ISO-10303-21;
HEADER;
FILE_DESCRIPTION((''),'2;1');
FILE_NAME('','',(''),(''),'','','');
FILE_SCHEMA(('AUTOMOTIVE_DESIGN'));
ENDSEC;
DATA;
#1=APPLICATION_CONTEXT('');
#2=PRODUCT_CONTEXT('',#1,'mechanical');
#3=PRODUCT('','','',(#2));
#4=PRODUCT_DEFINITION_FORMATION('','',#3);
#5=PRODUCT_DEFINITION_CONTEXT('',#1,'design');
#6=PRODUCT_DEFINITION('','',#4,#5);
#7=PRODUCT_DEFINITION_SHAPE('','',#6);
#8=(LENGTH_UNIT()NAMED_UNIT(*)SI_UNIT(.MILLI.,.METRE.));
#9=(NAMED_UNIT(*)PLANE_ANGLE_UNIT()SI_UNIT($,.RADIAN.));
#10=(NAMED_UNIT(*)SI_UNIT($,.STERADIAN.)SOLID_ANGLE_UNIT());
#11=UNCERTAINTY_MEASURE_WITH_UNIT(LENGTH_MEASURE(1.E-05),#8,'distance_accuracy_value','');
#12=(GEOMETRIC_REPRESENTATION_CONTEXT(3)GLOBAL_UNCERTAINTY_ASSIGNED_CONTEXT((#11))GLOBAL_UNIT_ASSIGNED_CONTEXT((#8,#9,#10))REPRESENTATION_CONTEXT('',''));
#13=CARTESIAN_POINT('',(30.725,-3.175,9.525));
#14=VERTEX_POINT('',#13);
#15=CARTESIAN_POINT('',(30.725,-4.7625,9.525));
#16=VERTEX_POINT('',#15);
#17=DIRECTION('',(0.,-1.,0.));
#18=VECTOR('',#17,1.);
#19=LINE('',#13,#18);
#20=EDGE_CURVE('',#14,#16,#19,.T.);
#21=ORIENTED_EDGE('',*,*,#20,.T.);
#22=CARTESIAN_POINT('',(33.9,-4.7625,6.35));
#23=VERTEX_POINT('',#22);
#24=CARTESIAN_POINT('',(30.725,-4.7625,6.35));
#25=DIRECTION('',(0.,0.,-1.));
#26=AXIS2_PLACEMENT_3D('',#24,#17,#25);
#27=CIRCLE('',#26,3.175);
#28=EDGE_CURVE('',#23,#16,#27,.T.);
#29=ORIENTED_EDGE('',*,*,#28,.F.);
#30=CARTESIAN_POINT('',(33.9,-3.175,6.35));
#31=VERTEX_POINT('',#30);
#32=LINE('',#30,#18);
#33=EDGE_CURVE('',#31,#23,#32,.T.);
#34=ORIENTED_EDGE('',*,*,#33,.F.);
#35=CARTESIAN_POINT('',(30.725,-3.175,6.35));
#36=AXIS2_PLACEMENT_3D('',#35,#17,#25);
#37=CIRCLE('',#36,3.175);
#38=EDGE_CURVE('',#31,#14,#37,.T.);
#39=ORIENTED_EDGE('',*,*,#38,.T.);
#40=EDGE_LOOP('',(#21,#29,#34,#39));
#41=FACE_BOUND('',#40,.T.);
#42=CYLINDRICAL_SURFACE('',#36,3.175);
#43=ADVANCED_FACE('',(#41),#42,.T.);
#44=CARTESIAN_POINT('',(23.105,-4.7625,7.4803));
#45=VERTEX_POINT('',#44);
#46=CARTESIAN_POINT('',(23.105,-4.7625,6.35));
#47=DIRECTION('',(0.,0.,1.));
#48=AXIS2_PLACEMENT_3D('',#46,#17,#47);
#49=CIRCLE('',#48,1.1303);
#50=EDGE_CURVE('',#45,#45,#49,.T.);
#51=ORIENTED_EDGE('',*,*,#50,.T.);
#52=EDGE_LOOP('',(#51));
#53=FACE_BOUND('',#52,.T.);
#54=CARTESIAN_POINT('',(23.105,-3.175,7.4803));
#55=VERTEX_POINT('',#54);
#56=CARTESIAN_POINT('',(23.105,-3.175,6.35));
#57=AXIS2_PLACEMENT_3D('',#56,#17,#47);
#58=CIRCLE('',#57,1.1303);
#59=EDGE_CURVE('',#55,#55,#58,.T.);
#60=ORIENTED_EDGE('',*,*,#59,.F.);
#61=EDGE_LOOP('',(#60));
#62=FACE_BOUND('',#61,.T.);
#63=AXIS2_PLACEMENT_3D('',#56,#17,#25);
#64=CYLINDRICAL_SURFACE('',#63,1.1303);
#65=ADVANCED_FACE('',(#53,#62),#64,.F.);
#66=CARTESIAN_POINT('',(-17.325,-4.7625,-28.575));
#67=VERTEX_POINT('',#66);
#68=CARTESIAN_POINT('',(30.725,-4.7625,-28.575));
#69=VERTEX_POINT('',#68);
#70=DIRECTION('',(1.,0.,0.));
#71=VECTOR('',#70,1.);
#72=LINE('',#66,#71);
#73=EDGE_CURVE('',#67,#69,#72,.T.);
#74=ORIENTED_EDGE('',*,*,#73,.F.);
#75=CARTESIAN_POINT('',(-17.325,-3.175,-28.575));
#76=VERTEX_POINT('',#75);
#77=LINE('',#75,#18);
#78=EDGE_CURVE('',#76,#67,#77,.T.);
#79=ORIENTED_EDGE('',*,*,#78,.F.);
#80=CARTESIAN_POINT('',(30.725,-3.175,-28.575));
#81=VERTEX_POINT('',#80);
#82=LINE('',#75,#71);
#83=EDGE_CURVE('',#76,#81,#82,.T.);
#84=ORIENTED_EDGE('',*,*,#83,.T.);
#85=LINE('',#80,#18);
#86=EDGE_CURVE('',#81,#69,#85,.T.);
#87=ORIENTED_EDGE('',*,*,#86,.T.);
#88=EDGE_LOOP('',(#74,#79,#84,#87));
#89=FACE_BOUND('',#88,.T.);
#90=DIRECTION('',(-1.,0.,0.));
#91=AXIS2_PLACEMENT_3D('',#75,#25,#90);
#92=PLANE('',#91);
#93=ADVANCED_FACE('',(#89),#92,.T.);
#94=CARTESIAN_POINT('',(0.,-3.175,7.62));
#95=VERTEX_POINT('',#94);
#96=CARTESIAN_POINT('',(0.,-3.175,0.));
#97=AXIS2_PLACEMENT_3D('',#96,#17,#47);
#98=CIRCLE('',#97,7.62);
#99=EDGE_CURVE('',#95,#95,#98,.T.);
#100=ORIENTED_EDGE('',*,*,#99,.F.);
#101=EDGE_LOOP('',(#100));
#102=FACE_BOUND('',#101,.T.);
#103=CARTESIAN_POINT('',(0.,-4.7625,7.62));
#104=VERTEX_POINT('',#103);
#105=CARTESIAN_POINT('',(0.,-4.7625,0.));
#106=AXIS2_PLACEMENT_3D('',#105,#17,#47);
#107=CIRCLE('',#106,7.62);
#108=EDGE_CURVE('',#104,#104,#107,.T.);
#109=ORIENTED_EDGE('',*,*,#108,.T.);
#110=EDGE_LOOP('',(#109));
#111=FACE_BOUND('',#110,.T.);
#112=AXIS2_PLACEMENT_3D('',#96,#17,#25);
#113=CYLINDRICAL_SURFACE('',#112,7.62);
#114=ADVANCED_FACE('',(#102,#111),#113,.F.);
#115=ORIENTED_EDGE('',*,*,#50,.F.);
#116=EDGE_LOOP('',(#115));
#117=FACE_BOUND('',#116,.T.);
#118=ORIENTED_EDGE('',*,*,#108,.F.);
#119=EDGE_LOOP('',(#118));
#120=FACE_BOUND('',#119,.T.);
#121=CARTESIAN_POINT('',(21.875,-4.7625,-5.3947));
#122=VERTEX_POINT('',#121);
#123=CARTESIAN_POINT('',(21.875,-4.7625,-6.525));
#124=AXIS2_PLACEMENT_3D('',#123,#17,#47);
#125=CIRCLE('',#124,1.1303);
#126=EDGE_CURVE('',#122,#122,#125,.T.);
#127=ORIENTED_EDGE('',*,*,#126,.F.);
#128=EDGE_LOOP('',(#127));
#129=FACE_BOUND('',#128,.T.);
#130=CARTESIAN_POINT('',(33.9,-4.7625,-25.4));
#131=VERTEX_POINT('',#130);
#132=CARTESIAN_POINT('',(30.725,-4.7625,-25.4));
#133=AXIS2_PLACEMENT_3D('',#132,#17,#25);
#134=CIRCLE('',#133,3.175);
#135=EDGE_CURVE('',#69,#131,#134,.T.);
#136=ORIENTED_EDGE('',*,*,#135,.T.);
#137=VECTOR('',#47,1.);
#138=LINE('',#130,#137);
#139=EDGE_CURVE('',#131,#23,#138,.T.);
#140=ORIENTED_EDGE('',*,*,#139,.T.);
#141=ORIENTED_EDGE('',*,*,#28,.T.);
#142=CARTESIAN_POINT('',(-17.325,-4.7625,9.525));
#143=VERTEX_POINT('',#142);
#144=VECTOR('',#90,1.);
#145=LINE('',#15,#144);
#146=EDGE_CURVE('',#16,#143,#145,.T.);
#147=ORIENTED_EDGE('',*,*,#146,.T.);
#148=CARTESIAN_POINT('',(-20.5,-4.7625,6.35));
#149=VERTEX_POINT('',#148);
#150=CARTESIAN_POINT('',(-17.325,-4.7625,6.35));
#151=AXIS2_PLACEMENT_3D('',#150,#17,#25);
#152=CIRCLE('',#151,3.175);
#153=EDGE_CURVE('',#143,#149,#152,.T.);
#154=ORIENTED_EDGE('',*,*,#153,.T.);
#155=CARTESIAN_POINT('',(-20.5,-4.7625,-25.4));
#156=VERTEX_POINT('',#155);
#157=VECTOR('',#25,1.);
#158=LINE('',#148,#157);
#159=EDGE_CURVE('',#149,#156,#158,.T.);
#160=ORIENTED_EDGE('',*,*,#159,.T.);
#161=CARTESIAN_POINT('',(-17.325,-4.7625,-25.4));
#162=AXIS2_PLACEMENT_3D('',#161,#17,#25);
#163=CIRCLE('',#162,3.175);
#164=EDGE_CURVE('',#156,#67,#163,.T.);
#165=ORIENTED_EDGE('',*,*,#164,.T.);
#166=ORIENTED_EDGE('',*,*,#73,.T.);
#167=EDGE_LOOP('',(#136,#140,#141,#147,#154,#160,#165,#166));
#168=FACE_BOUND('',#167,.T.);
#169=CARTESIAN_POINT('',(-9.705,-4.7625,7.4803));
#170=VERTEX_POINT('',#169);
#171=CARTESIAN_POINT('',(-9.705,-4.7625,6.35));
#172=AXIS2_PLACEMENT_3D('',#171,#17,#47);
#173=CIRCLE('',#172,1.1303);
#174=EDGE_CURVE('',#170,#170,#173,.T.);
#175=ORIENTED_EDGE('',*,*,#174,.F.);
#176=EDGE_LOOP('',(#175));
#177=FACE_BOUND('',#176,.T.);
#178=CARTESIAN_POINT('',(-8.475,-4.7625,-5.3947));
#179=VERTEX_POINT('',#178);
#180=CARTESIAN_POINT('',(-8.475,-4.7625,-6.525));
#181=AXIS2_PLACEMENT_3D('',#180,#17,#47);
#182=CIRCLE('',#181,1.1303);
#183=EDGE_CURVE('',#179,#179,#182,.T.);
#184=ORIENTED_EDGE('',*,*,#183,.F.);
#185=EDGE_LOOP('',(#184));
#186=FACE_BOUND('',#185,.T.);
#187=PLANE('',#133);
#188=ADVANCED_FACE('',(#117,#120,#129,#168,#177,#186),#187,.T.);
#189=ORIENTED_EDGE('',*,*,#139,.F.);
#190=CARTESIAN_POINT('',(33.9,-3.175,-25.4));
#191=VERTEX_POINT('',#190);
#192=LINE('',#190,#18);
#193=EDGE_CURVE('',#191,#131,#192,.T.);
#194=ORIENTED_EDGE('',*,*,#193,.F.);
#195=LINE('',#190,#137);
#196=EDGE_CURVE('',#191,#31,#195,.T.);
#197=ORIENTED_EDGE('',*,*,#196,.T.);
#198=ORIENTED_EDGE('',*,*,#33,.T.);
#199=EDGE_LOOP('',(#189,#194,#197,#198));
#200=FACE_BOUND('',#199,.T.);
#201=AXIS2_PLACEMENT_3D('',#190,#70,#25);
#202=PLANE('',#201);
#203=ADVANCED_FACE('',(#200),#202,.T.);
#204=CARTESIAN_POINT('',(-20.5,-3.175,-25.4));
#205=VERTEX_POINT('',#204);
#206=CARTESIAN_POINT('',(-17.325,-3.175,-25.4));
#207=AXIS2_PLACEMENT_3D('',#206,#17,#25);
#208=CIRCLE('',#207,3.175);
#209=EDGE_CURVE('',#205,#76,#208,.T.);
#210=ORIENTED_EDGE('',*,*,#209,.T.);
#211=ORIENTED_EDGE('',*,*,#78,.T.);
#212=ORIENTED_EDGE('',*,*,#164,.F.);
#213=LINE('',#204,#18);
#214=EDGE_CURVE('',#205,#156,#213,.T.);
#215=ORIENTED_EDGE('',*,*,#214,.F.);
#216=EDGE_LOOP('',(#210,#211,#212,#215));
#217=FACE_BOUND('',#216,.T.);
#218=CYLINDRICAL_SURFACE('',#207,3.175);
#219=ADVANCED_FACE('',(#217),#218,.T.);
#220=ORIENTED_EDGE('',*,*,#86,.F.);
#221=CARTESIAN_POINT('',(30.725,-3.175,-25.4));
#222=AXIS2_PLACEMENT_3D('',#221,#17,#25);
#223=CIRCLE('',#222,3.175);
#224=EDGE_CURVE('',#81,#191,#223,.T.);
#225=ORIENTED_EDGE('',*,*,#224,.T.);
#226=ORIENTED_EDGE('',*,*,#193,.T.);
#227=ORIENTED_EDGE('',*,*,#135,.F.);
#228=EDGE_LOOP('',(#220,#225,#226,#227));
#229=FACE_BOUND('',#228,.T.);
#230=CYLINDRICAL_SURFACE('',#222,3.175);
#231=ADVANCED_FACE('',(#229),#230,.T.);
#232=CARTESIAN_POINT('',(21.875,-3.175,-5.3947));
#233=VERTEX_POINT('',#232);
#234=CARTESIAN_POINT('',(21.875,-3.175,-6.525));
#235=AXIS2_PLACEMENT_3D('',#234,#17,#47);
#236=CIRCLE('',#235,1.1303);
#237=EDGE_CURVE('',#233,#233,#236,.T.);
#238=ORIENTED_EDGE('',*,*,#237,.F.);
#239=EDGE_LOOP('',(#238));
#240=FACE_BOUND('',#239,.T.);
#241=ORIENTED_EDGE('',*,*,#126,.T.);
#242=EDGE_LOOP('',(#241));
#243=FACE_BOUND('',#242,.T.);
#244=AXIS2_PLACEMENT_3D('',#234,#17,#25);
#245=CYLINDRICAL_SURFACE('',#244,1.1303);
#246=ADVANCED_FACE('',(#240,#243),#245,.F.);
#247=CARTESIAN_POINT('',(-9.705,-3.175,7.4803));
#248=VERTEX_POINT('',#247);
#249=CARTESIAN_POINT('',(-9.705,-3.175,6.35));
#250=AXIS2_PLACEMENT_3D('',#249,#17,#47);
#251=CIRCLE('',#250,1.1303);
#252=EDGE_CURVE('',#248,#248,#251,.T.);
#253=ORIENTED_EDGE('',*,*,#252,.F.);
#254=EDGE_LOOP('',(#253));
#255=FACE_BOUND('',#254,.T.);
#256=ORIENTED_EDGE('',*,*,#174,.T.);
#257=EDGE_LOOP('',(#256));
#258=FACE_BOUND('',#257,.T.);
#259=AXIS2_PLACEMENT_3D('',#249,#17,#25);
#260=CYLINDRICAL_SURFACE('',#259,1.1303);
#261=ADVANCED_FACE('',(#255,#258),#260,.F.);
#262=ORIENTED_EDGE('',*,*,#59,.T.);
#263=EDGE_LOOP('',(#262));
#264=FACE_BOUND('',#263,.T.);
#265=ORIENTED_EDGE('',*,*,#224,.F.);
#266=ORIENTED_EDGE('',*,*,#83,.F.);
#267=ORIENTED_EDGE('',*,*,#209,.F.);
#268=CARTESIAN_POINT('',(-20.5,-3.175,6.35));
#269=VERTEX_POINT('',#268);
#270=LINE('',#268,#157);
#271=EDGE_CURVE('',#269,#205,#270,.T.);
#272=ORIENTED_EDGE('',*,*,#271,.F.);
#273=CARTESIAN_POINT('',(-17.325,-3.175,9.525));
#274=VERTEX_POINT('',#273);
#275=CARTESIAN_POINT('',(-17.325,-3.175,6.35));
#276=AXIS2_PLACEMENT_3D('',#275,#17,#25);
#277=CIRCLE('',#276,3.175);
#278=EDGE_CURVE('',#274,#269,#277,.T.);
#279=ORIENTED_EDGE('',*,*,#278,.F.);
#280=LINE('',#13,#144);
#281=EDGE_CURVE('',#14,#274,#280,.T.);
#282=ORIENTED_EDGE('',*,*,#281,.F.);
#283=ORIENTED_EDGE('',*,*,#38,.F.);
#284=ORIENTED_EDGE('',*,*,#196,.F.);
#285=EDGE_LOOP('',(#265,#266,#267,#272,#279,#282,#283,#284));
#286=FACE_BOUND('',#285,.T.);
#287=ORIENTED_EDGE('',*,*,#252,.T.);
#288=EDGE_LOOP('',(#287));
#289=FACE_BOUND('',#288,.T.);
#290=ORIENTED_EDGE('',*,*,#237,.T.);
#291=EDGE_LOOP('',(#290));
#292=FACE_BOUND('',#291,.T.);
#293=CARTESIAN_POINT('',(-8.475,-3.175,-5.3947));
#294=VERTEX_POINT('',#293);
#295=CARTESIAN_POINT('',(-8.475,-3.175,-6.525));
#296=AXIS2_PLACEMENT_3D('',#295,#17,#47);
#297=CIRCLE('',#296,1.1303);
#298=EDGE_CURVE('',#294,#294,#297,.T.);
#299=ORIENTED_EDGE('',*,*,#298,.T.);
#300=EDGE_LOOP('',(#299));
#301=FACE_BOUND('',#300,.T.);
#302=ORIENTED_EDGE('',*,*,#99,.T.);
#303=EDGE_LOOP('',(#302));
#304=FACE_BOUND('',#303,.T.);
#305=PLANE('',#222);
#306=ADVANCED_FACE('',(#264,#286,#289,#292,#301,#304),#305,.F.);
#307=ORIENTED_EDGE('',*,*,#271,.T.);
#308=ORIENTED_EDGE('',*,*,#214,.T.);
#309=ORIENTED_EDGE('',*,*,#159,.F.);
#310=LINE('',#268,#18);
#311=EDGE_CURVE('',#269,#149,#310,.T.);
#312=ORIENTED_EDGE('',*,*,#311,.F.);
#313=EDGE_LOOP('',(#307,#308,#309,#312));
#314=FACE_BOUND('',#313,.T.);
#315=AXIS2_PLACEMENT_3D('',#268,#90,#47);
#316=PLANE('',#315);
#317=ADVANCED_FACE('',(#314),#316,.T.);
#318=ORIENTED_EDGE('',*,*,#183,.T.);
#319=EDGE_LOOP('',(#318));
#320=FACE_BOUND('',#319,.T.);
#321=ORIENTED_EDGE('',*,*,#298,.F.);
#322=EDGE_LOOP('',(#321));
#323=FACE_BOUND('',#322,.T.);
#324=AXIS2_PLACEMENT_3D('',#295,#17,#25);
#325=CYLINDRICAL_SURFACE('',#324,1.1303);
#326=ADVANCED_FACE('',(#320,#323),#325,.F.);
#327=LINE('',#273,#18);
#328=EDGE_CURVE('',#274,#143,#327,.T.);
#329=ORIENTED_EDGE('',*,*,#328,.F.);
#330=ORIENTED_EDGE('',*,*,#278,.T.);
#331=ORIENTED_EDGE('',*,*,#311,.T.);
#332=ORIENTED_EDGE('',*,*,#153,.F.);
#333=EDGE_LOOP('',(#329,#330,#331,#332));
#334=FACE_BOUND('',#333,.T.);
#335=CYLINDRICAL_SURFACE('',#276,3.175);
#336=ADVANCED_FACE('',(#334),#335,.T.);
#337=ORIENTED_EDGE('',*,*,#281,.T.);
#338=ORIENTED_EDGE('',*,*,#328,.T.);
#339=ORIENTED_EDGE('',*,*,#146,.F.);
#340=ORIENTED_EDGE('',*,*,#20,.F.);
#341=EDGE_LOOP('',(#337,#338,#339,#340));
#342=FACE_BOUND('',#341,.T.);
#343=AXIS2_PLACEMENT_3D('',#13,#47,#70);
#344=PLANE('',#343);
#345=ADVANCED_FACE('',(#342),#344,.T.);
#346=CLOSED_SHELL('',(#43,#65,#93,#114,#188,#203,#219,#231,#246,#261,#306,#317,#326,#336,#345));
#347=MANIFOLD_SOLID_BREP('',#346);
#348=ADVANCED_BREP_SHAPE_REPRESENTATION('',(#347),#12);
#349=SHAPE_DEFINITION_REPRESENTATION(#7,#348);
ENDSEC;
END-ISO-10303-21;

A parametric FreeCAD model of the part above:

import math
import FreeCAD as App
import Part
import Sketcher
Q = App.Units.Quantity

doc = App.newDocument("Part")
params = doc.addObject("Spreadsheet::Sheet", "Params")
for row, (alias, value) in enumerate([
    ("sketch1_diameter", "0.6 in"),
    ("sketch1_diameter2", "0.089 in"),
    ("sketch1_radius", "0.125 in"),
    ("sketch1_height", "1.25 in"),
    ("pad1_length", "0.0625 in"),
], start=1):
    params.set(f"A{row}", alias)
    params.set(f"B{row}", "=" + value)
    params.setAlias(f"B{row}", alias)

body = doc.addObject("PartDesign::Body", "Body")

# Sketch on XZ plane
sketch1 = body.newObject("Sketcher::SketchObject", "Sketch")
sketch1.AttachmentSupport = (doc.getObject("XZ_Plane"), [""])
sketch1.MapMode = "FlatFace"
sketch1.AttachmentOffset = App.Placement(App.Vector(0, 0, 0.1875 * 25.4), App.Rotation())
sketch1.addGeometry([
    Part.LineSegment(App.Vector(33.9, -25.4, 0), App.Vector(33.9, 6.35, 0)),  # 0
    Part.ArcOfCircle(Part.Circle(App.Vector(30.725, 6.35, 0), App.Vector(0, 0, 1), 3.175), math.radians(0), math.radians(90)),  # 1
    Part.LineSegment(App.Vector(30.725, 9.525, 0), App.Vector(-17.325, 9.525, 0)),  # 2
    Part.ArcOfCircle(Part.Circle(App.Vector(-17.325, 6.35, 0), App.Vector(0, 0, 1), 3.175), math.radians(90), math.radians(180)),  # 3
    Part.LineSegment(App.Vector(-20.5, 6.35, 0), App.Vector(-20.5, -25.4, 0)),  # 4
    Part.ArcOfCircle(Part.Circle(App.Vector(-17.325, -25.4, 0), App.Vector(0, 0, 1), 3.175), math.radians(-180), math.radians(-90)),  # 5
    Part.LineSegment(App.Vector(-17.325, -28.575, 0), App.Vector(30.725, -28.575, 0)),  # 6
    Part.ArcOfCircle(Part.Circle(App.Vector(30.725, -25.4, 0), App.Vector(0, 0, 1), 3.175), math.radians(-90), math.radians(0)),  # 7
    Part.Circle(App.Vector(-8.475, -6.525, 0), App.Vector(0, 0, 1), 1.1303),  # 8
    Part.Circle(App.Vector(21.875, -6.525, 0), App.Vector(0, 0, 1), 1.1303),  # 9
    Part.Circle(App.Vector(0, 0, 0), App.Vector(0, 0, 1), 7.62),  # 10
    Part.Circle(App.Vector(-9.705, 6.35, 0), App.Vector(0, 0, 1), 1.1303),  # 11
    Part.Circle(App.Vector(23.105, 6.35, 0), App.Vector(0, 0, 1), 1.1303),  # 12
], False)
sketch1.addConstraint([
    Sketcher.Constraint("Tangent", 0, 2, 1, 1),
    Sketcher.Constraint("Tangent", 1, 2, 2, 1),
    Sketcher.Constraint("Tangent", 2, 2, 3, 1),
    Sketcher.Constraint("Tangent", 3, 2, 4, 1),
    Sketcher.Constraint("Tangent", 4, 2, 5, 1),
    Sketcher.Constraint("Tangent", 5, 2, 6, 1),
    Sketcher.Constraint("Tangent", 6, 2, 7, 1),
    Sketcher.Constraint("Tangent", 7, 2, 0, 1),
    Sketcher.Constraint("Vertical", 0),
    Sketcher.Constraint("Horizontal", 2),
    Sketcher.Constraint("Vertical", 4),
    Sketcher.Constraint("Horizontal", 6),
    Sketcher.Constraint("Coincident", 10, 3, -1, 1),
    Sketcher.Constraint("Equal", 1, 3),
    Sketcher.Constraint("Equal", 3, 5),
    Sketcher.Constraint("Equal", 5, 7),
    Sketcher.Constraint("Equal", 8, 9),
    Sketcher.Constraint("Equal", 9, 11),
    Sketcher.Constraint("Equal", 11, 12),
    Sketcher.Constraint("Horizontal", 8, 3, 9, 3),
    Sketcher.Constraint("Horizontal", 3, 3, 11, 3),
    Sketcher.Constraint("Horizontal", 11, 3, 12, 3),
    Sketcher.Constraint("Diameter", 10, Q("0.6 in")),
    Sketcher.Constraint("Diameter", 8, Q("0.089 in")),
    Sketcher.Constraint("DistanceY", 5, 3, -1, 1, Q("1 in")),
    Sketcher.Constraint("Radius", 1, Q("0.125 in")),
    Sketcher.Constraint("DistanceY", 0, 1, 0, 2, Q("1.25 in")),
    Sketcher.Constraint("DistanceX", 3, 3, 11, 3, Q("0.3 in")),
    Sketcher.Constraint("DistanceX", 12, 3, 1, 3, Q("0.3 in")),
    Sketcher.Constraint("DistanceX", 2, 2, 2, 1, 48.05),
    Sketcher.Constraint("DistanceX", -1, 1, 1, 3, 30.725),
    Sketcher.Constraint("DistanceX", 8, 3, -1, 1, 8.475),
    Sketcher.Constraint("DistanceY", 8, 3, -1, 1, 6.525),
    Sketcher.Constraint("DistanceX", -1, 1, 9, 3, 21.875),
])
sketch1.setExpression("Constraints[22]", "Params.sketch1_diameter")
sketch1.setExpression("Constraints[23]", "Params.sketch1_diameter2")
sketch1.setExpression("Constraints[25]", "Params.sketch1_radius")
sketch1.setExpression("Constraints[26]", "Params.sketch1_height")
pad1 = body.newObject("PartDesign::Pad", "Pad")
pad1.Profile = sketch1
pad1.setExpression("Length", "Params.pad1_length")
pad1.Reversed = True

doc.recompute()
